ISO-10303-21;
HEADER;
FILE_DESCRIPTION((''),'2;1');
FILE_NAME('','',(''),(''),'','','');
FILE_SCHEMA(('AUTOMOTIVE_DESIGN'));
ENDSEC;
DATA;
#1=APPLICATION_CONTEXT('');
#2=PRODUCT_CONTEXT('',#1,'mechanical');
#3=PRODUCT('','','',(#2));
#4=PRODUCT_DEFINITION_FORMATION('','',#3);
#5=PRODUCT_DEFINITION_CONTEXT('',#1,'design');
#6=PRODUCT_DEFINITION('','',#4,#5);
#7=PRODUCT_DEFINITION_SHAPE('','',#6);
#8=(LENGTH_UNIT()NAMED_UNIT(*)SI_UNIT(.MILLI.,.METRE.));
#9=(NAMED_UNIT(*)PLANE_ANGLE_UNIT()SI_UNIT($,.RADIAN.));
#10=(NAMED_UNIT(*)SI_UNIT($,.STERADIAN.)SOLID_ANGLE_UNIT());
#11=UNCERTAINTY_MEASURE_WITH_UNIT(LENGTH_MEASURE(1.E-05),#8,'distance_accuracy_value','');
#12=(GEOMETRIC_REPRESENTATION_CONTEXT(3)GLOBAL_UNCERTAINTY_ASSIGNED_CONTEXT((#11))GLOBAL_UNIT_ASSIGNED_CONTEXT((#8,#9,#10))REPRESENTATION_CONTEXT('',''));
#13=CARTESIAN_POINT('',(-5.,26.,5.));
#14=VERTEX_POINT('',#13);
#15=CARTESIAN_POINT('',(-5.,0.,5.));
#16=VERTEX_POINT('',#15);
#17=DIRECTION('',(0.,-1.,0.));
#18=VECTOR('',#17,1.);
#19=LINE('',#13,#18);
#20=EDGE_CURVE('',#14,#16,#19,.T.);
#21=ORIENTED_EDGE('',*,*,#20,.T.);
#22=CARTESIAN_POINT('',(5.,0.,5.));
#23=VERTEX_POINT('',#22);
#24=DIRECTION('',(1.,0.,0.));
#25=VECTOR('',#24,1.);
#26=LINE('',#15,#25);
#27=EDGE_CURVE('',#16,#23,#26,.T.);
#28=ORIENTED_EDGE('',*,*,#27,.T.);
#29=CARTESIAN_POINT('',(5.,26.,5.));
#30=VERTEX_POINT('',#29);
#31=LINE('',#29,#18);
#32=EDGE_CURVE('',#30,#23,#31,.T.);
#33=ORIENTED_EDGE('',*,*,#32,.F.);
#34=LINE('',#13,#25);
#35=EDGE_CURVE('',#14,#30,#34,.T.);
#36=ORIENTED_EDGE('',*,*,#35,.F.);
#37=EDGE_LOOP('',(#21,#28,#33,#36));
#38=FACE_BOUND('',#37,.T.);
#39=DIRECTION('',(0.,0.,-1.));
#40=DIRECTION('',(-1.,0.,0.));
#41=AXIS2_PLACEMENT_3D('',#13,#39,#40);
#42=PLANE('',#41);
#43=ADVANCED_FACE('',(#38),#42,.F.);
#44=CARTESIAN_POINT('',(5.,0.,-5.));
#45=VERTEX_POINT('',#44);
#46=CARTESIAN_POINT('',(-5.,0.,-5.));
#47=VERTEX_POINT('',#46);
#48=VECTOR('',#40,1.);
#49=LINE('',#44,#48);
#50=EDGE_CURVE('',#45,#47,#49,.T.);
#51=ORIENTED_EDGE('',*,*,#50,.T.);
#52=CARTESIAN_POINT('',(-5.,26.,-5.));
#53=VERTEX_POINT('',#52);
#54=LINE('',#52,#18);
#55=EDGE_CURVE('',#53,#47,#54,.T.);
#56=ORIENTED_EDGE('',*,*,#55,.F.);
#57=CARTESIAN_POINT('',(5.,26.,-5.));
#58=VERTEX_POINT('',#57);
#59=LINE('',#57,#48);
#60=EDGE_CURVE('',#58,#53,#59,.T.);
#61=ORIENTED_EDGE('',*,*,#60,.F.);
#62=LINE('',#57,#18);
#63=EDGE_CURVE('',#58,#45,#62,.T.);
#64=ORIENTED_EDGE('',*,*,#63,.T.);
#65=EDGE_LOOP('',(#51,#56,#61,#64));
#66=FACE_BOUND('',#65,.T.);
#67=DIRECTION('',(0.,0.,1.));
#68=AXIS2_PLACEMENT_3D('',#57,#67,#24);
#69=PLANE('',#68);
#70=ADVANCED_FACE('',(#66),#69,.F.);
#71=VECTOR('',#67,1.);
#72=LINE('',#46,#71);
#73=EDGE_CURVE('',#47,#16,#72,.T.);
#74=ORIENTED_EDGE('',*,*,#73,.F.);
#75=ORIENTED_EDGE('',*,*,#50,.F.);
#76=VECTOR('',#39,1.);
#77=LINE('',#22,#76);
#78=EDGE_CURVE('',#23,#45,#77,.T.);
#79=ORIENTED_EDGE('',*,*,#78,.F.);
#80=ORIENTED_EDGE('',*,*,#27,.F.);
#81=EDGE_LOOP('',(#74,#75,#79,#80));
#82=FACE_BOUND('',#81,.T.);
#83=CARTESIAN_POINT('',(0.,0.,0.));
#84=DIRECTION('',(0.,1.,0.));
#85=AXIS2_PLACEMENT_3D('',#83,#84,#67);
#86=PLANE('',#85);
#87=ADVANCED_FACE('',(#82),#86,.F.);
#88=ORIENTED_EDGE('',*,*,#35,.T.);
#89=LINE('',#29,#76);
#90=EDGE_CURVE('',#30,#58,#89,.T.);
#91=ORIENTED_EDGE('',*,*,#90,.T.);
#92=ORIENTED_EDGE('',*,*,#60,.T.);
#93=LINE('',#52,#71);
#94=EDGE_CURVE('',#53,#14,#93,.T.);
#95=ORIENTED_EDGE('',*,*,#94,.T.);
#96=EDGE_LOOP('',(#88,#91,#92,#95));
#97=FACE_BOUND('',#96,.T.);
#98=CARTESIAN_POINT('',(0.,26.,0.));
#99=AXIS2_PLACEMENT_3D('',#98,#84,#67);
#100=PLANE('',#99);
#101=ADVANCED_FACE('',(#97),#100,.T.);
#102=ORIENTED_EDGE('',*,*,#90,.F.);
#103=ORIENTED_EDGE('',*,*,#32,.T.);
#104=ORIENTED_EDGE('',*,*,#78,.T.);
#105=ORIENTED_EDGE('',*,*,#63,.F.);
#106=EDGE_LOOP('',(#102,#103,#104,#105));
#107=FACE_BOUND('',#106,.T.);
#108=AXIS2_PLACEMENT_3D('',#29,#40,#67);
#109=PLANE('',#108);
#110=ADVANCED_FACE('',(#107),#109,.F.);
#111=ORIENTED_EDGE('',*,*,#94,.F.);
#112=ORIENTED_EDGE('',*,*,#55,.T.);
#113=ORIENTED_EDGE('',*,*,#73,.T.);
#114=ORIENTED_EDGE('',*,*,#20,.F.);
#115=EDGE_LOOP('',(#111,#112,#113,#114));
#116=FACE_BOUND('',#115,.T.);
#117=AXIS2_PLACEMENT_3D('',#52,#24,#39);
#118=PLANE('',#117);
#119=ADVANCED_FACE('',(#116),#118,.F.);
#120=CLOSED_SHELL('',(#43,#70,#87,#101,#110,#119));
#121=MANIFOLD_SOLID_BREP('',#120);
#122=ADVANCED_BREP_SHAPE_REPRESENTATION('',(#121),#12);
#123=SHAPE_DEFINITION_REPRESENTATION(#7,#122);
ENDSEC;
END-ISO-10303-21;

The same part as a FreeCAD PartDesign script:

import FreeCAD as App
import Part
import Sketcher

doc = App.newDocument("Part")
body = doc.addObject("PartDesign::Body", "Body")

# Sketch on XZ plane
sketch1 = doc.addObject("Sketcher::SketchObject", "Sketch")
body.addObject(sketch1)
sketch1.AttachmentSupport = (doc.XZ_Plane, [""])
sketch1.MapMode = "FlatFace"
sketch1.addGeometry(Part.LineSegment(App.Vector(-5, -5, 0), App.Vector(-5, 5, 0)), False)
sketch1.addGeometry(Part.LineSegment(App.Vector(-5, 5, 0), App.Vector(5, 5, 0)), False)
sketch1.addGeometry(Part.LineSegment(App.Vector(5, 5, 0), App.Vector(5, -5, 0)), False)
sketch1.addGeometry(Part.LineSegment(App.Vector(5, -5, 0), App.Vector(-5, -5, 0)), False)
sketch1.addConstraint(Sketcher.Constraint("Coincident", 0, 2, 1, 1))
sketch1.addConstraint(Sketcher.Constraint("Coincident", 1, 2, 2, 1))
sketch1.addConstraint(Sketcher.Constraint("Coincident", 2, 2, 3, 1))
sketch1.addConstraint(Sketcher.Constraint("Coincident", 3, 2, 0, 1))
sketch1.addConstraint(Sketcher.Constraint("Vertical", 0))
sketch1.addConstraint(Sketcher.Constraint("Horizontal", 1))
sketch1.addConstraint(Sketcher.Constraint("Vertical", 2))
sketch1.addConstraint(Sketcher.Constraint("Horizontal", 3))
sketch1.addConstraint(Sketcher.Constraint("Symmetric", 0, 2, 2, 2, -1, 1))
sketch1.addConstraint(Sketcher.Constraint("Equal", 3, 0))
sketch1.addConstraint(Sketcher.Constraint("DistanceX", 1, 1, 1, 2, 10.0))
pad1 = doc.addObject("PartDesign::Pad", "Pad")
body.addObject(pad1)
pad1.Profile = sketch1
pad1.Length = 26
pad1.Reversed = True

doc.recompute()
